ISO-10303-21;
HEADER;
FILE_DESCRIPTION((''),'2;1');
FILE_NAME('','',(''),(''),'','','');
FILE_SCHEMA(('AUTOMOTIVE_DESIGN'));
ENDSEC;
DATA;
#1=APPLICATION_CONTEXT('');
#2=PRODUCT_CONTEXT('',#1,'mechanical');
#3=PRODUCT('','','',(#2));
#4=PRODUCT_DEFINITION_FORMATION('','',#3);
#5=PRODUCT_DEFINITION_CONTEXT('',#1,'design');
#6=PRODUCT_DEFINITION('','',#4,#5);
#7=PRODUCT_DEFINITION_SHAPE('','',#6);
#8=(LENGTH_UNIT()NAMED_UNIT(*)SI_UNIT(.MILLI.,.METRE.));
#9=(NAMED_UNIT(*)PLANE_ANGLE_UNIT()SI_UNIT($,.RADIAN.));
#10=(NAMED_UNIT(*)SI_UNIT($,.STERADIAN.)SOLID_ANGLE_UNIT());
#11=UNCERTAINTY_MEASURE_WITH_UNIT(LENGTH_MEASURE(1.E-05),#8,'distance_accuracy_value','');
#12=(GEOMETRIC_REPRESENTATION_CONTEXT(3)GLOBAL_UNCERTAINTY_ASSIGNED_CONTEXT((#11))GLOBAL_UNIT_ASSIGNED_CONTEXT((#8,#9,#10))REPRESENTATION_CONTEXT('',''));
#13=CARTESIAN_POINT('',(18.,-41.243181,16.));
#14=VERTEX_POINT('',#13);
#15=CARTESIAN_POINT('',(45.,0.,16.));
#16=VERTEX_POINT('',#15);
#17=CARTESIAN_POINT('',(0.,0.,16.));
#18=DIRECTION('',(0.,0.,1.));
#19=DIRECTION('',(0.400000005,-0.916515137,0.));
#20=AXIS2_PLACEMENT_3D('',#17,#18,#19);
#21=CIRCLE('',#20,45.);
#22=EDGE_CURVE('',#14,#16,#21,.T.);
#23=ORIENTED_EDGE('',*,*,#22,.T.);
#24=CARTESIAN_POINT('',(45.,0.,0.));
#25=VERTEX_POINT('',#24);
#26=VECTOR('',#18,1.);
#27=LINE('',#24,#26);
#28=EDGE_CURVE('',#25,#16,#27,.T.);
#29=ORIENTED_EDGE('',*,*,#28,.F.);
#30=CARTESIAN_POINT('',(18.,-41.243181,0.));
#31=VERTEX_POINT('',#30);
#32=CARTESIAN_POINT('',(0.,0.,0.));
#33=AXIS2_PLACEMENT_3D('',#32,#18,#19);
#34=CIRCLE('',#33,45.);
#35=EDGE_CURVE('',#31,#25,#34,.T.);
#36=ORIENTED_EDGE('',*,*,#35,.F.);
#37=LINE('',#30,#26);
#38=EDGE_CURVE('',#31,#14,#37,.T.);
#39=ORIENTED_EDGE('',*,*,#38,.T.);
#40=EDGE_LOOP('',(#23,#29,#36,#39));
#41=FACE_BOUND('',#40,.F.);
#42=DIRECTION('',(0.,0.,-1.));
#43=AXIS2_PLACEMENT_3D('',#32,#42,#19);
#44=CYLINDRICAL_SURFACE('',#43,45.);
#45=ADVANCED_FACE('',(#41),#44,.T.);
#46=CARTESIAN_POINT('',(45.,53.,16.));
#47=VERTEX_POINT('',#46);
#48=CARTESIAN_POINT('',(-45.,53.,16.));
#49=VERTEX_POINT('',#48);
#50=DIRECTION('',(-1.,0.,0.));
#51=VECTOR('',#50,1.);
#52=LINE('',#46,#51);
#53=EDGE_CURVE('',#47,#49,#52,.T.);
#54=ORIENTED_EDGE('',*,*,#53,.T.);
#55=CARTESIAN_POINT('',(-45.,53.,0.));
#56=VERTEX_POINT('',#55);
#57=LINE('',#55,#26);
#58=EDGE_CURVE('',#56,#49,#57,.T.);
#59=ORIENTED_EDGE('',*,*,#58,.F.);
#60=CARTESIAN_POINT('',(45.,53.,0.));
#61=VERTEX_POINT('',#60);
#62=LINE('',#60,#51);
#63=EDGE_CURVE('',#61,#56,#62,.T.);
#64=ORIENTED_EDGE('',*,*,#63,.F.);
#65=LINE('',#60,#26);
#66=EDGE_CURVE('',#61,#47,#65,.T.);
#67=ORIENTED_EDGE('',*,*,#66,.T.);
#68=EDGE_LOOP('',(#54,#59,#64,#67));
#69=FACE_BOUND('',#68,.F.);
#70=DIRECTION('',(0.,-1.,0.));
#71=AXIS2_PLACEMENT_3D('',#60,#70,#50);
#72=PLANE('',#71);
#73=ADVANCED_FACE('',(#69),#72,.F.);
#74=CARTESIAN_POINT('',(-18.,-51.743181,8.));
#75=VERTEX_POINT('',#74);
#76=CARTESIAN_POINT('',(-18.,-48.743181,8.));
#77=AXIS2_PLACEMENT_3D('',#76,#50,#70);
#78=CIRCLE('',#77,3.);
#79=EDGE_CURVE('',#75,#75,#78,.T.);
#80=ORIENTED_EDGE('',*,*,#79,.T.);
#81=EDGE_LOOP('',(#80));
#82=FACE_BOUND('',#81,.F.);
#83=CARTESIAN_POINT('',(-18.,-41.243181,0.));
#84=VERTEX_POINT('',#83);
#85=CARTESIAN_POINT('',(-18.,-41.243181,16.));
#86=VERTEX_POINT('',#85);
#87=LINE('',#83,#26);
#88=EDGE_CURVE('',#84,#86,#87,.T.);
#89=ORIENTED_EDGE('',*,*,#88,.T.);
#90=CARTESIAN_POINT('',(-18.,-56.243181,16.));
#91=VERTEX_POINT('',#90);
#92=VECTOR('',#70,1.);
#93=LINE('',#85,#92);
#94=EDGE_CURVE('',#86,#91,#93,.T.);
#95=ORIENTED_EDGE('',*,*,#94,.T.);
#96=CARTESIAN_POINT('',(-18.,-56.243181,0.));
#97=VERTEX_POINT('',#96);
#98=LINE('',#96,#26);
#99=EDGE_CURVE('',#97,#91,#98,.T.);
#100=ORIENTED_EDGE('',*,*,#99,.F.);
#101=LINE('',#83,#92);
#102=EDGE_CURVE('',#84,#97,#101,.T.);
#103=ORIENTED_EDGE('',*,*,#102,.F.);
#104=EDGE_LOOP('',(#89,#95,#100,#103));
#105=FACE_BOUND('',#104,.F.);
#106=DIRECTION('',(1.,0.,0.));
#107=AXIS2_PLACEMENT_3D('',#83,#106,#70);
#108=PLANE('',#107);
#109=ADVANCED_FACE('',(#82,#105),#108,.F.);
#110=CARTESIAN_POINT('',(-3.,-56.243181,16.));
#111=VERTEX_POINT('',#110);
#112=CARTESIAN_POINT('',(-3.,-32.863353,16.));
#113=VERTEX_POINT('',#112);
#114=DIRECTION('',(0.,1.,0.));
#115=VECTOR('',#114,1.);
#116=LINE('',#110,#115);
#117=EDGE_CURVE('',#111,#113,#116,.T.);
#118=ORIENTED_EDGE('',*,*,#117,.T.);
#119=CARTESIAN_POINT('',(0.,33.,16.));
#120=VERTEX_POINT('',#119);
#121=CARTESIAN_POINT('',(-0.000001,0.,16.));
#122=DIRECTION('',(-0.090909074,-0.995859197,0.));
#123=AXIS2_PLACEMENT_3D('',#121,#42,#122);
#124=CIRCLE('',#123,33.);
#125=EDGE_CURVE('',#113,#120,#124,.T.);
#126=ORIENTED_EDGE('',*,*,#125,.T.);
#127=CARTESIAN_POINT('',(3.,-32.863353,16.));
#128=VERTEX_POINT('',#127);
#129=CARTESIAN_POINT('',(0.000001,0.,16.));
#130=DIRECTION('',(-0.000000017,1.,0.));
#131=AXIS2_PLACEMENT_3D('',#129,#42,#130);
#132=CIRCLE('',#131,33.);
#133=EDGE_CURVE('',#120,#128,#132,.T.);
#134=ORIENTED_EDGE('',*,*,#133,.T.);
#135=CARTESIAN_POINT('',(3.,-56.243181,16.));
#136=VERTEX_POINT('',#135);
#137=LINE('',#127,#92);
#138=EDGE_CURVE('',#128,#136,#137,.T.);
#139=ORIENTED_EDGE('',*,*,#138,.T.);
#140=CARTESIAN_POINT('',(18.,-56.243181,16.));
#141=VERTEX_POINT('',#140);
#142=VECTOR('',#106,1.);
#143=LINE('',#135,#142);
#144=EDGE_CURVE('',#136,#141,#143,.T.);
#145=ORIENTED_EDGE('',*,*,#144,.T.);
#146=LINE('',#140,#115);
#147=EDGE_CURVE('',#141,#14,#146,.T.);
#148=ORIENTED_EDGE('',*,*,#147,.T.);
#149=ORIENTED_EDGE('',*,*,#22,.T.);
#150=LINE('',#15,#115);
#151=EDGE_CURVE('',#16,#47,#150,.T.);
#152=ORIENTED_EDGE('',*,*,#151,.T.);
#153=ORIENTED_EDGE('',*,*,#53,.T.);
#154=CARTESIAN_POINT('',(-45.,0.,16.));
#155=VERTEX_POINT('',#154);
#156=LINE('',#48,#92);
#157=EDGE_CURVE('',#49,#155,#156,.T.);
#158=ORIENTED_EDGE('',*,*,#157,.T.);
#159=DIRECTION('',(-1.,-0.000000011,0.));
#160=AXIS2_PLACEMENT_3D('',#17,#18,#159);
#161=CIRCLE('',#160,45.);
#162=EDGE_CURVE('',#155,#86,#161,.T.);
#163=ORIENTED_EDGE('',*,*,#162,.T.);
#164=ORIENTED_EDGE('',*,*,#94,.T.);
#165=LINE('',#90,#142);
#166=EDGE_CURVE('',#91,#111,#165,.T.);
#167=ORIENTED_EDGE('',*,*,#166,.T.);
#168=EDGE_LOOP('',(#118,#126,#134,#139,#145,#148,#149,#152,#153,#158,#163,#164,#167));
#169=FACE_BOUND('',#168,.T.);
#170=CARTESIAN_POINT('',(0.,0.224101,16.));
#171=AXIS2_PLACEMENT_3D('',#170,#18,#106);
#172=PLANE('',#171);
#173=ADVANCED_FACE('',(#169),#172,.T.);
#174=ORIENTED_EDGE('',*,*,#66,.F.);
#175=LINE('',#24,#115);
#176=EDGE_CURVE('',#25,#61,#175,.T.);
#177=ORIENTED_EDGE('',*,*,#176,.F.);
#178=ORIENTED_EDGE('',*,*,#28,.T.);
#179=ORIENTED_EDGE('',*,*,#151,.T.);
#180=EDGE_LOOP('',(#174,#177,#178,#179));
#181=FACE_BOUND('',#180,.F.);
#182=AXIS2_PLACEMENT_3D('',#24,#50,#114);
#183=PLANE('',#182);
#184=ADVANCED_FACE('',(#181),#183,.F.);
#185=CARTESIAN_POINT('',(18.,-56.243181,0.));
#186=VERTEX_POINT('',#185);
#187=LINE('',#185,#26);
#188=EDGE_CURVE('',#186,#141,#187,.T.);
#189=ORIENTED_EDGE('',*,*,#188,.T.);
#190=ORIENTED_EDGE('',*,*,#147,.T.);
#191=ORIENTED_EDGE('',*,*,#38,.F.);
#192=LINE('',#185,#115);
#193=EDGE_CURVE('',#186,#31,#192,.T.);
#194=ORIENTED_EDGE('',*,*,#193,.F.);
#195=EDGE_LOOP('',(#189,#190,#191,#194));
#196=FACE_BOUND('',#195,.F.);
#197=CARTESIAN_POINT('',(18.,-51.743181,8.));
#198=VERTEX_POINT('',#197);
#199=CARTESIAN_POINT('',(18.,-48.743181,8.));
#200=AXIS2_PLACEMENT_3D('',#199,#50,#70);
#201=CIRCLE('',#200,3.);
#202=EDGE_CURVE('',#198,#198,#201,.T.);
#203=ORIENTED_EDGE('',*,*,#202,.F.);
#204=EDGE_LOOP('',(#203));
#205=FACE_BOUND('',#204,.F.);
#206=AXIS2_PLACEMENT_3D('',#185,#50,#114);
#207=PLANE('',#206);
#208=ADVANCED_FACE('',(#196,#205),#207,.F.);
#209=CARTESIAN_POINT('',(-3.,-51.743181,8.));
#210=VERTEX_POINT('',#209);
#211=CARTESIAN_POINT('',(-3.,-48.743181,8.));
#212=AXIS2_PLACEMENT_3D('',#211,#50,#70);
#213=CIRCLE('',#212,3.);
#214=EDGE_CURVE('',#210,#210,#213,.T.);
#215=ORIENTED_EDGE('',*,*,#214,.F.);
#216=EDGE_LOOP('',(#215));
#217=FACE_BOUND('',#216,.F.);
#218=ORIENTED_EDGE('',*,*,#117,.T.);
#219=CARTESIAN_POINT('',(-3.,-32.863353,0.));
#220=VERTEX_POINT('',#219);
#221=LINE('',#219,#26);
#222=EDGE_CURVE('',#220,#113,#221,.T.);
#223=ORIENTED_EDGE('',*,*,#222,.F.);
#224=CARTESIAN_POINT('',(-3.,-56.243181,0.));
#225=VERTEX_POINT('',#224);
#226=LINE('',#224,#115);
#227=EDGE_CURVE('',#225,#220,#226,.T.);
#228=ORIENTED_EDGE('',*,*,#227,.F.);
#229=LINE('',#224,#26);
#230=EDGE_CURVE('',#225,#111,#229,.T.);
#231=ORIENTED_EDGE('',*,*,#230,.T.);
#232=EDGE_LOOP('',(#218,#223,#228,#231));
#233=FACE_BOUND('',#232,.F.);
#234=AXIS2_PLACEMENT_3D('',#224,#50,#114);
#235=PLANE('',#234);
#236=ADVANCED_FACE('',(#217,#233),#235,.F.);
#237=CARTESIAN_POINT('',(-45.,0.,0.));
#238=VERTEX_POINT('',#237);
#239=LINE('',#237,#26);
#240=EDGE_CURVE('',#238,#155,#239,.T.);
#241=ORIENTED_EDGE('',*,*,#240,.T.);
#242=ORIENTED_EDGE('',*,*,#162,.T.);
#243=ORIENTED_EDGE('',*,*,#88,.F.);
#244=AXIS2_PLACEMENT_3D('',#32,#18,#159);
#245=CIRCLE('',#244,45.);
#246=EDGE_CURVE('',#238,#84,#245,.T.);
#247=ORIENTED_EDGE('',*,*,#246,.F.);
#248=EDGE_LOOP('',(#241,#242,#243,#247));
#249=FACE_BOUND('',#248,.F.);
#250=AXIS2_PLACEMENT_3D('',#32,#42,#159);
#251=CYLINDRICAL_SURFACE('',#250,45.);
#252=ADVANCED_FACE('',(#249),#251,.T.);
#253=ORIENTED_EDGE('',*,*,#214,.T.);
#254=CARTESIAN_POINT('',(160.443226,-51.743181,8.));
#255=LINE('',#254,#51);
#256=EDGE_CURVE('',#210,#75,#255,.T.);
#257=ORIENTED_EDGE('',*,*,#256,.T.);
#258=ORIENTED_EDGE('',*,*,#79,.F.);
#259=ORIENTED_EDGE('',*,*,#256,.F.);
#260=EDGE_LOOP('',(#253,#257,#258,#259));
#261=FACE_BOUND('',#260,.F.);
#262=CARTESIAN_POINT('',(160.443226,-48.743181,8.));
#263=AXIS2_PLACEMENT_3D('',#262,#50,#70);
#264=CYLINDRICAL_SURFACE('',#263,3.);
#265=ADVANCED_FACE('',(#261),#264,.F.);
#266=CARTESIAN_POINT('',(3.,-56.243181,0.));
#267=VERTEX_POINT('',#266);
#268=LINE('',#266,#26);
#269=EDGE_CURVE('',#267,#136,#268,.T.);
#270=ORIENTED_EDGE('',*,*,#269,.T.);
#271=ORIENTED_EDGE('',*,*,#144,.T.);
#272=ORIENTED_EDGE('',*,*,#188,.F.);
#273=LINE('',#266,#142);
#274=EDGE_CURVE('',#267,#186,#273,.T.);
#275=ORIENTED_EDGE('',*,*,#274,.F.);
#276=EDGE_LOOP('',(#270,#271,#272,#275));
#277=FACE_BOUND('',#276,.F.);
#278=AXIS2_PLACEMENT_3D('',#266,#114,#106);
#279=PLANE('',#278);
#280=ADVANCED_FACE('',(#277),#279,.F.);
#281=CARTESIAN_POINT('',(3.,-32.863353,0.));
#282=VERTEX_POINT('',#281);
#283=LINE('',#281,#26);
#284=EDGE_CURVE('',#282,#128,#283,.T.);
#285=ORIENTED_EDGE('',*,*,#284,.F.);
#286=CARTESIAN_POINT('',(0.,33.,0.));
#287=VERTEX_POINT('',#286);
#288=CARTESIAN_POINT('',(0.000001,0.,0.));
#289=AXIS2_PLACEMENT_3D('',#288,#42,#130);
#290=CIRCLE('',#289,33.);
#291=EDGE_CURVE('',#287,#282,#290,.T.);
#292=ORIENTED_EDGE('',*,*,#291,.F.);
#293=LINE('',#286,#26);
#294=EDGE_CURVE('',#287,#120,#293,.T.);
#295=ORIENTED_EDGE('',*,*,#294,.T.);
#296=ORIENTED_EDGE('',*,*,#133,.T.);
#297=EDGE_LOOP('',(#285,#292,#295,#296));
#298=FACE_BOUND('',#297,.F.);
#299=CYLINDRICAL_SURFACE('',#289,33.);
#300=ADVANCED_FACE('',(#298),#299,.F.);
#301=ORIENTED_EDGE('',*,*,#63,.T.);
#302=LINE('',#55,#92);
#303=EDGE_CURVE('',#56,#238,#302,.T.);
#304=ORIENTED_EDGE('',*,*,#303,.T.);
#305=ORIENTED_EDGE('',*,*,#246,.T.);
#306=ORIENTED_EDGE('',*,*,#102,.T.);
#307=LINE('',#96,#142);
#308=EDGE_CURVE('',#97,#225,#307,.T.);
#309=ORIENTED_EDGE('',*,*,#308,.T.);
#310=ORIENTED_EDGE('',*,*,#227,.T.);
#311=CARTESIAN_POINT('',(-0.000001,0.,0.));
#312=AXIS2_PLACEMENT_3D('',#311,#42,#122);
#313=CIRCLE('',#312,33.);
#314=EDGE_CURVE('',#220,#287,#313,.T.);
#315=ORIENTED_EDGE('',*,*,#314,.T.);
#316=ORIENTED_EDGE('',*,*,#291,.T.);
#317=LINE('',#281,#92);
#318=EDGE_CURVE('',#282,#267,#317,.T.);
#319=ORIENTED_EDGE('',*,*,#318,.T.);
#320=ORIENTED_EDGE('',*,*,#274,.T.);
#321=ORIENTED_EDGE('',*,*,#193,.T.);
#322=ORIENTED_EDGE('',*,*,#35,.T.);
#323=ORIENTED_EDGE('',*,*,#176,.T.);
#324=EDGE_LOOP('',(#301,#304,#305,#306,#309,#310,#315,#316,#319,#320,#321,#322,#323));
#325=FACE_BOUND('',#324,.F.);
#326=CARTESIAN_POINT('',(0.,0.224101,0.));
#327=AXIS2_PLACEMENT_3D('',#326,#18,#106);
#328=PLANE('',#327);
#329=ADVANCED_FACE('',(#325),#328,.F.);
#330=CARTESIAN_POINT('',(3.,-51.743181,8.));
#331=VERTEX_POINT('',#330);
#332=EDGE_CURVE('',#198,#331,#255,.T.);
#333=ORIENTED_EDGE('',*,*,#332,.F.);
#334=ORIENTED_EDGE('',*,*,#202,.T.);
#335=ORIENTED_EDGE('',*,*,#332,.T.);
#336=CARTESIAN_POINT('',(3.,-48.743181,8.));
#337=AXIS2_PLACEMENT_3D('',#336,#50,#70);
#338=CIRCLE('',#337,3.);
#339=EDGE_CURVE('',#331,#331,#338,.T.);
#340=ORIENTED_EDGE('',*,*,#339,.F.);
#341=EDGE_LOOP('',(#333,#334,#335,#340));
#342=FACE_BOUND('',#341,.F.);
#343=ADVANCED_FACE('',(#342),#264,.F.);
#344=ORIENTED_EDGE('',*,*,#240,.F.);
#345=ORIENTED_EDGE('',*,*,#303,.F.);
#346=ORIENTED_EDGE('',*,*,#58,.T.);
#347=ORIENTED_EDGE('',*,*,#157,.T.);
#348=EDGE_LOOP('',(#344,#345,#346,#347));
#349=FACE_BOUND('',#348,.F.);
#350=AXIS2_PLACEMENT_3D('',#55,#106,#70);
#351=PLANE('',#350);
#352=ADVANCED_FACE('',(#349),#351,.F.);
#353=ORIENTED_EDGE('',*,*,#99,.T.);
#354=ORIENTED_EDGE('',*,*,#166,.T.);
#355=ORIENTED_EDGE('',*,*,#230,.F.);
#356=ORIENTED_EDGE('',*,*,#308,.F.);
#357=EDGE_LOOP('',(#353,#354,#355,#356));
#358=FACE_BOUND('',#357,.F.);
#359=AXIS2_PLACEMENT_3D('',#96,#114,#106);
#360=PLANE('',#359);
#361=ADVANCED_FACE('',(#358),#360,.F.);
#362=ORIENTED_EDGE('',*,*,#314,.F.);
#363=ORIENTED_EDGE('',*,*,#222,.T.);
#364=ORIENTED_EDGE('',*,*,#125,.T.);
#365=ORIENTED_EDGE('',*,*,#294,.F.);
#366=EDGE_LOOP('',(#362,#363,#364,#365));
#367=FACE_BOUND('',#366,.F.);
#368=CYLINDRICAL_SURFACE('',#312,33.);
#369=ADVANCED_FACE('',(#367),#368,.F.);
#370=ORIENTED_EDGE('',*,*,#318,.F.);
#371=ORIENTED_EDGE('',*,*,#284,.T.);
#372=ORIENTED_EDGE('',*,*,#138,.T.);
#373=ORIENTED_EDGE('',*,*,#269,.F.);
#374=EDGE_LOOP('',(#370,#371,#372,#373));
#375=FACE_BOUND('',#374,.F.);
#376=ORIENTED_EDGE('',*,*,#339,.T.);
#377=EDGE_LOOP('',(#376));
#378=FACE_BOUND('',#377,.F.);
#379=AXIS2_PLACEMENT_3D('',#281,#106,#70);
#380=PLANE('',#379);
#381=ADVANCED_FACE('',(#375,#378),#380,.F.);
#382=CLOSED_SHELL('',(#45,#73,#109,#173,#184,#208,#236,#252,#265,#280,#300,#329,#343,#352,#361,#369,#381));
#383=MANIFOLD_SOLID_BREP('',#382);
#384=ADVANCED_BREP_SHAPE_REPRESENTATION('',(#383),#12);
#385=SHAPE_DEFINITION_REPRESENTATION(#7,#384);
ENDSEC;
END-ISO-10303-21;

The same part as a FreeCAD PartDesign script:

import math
import FreeCAD as App
import Part
import Sketcher
from FreeCAD import Vector
Q = App.Units.Quantity

doc = App.newDocument("Part")
body = doc.addObject("PartDesign::Body", "Body")

# Sketch on XY plane
sketch1 = doc.addObject("Sketcher::SketchObject", "Sketch")
body.addObject(sketch1)
sketch1.AttachmentSupport = (doc.XY_Plane, [""])
sketch1.MapMode = "FlatFace"
sketch1.addGeometry([
    Part.LineSegment(Vector(-45, 53, 0), Vector(-45, 0, 0)),  # 0
    Part.ArcOfCircle(Part.Circle(Vector(0, 0, 0), Vector(0, 0, 1), 45), math.radians(-180), math.radians(-114)),  # 1
    Part.LineSegment(Vector(-18, -41, 0), Vector(-18, -56, 0)),  # 2
    Part.LineSegment(Vector(-18, -56, 0), Vector(-3, -56, 0)),  # 3
    Part.LineSegment(Vector(-3, -56, 0), Vector(-3, -33, 0)),  # 4
    Part.ArcOfCircle(Part.Circle(Vector(0, 0, 0), Vector(0, 0, 1), 33), math.radians(90), math.radians(265)),  # 5
    Part.ArcOfCircle(Part.Circle(Vector(0, 0, 0), Vector(0, 0, 1), 33), math.radians(-85), math.radians(90)),  # 6
    Part.LineSegment(Vector(3, -33, 0), Vector(3, -56, 0)),  # 7
    Part.LineSegment(Vector(3, -56, 0), Vector(18, -56, 0)),  # 8
    Part.LineSegment(Vector(18, -56, 0), Vector(18, -41, 0)),  # 9
    Part.ArcOfCircle(Part.Circle(Vector(0, 0, 0), Vector(0, 0, 1), 45), math.radians(-66), math.radians(0)),  # 10
    Part.LineSegment(Vector(45, 0, 0), Vector(45, 53, 0)),  # 11
    Part.LineSegment(Vector(45, 53, 0), Vector(-45, 53, 0)),  # 12
], False)
sketch1.addConstraint([
    Sketcher.Constraint("Tangent", 0, 2, 1, 1),
    Sketcher.Constraint("Coincident", 1, 2, 2, 1),
    Sketcher.Constraint("Coincident", 2, 2, 3, 1),
    Sketcher.Constraint("Coincident", 3, 2, 4, 1),
    Sketcher.Constraint("Coincident", 4, 2, 5, 2),
    Sketcher.Constraint("Tangent", 5, 1, 6, 2),
    Sketcher.Constraint("Coincident", 6, 1, 7, 1),
    Sketcher.Constraint("Coincident", 7, 2, 8, 1),
    Sketcher.Constraint("Coincident", 8, 2, 9, 1),
    Sketcher.Constraint("Coincident", 9, 2, 10, 1),
    Sketcher.Constraint("Tangent", 10, 2, 11, 1),
    Sketcher.Constraint("Coincident", 11, 2, 12, 1),
    Sketcher.Constraint("Coincident", 12, 2, 0, 1),
    Sketcher.Constraint("Vertical", 0),
    Sketcher.Constraint("Vertical", 2),
    Sketcher.Constraint("Horizontal", 3),
    Sketcher.Constraint("Vertical", 4),
    Sketcher.Constraint("Vertical", 7),
    Sketcher.Constraint("Horizontal", 8),
    Sketcher.Constraint("Vertical", 9),
    Sketcher.Constraint("Vertical", 11),
    Sketcher.Constraint("Horizontal", 12),
    Sketcher.Constraint("Coincident", 1, 3, -1, 1),
    Sketcher.Constraint("Coincident", 5, 3, -1, 1),
    Sketcher.Constraint("Coincident", 10, 3, -1, 1),
    Sketcher.Constraint("Equal", 5, 6),
    Sketcher.Constraint("Equal", 1, 10),
    Sketcher.Constraint("Symmetric", 3, 2, 7, 2, -2),
    Sketcher.Constraint("PointOnObject", 5, 1, -2),
    Sketcher.Constraint("Horizontal", 1, 2, 9, 2),
    Sketcher.Constraint("Equal", 8, 2),
    Sketcher.Constraint("Radius", 1, Q("45 mm")),
    Sketcher.Constraint("Radius", 5, Q("33 mm")),
    Sketcher.Constraint("DistanceX", 3, 1, 3, 2, Q("15 mm")),
    Sketcher.Constraint("DistanceY", 0, 2, 0, 1, Q("53 mm")),
    Sketcher.Constraint("DistanceX", 1, 2, -1, 1, Q("18 mm")),
])
pad1 = doc.addObject("PartDesign::Pad", "Pad")
body.addObject(pad1)
pad1.Profile = sketch1
pad1.Length = 16

# Sketch on YZ plane
sketch2 = doc.addObject("Sketcher::SketchObject", "Sketch001")
body.addObject(sketch2)
sketch2.AttachmentSupport = (doc.YZ_Plane, [""])
sketch2.MapMode = "FlatFace"
sketch2.AttachmentOffset = App.Placement(Vector(0, 0, 18), App.Rotation())
sketch2.addGeometry(Part.Circle(Vector(-48.7, 8, 0), Vector(0, 0, 1), 3), False)
sketch2.addConstraint([
    Sketcher.Constraint("Diameter", 0, Q("6 mm")),
    Sketcher.Constraint("DistanceY", -1, 1, 0, 3, Q("8 mm")),
    Sketcher.Constraint("DistanceX", 0, 3, -1, 1, Q("48.743181 mm")),
])
doc.recompute()
hole = doc.addObject("PartDesign::Hole", "Hole")
body.addObject(hole)
hole.Profile = sketch2
hole.ThreadType = "None"
hole.Diameter = 6
hole.DepthType = "ThroughAll"

doc.recompute()
